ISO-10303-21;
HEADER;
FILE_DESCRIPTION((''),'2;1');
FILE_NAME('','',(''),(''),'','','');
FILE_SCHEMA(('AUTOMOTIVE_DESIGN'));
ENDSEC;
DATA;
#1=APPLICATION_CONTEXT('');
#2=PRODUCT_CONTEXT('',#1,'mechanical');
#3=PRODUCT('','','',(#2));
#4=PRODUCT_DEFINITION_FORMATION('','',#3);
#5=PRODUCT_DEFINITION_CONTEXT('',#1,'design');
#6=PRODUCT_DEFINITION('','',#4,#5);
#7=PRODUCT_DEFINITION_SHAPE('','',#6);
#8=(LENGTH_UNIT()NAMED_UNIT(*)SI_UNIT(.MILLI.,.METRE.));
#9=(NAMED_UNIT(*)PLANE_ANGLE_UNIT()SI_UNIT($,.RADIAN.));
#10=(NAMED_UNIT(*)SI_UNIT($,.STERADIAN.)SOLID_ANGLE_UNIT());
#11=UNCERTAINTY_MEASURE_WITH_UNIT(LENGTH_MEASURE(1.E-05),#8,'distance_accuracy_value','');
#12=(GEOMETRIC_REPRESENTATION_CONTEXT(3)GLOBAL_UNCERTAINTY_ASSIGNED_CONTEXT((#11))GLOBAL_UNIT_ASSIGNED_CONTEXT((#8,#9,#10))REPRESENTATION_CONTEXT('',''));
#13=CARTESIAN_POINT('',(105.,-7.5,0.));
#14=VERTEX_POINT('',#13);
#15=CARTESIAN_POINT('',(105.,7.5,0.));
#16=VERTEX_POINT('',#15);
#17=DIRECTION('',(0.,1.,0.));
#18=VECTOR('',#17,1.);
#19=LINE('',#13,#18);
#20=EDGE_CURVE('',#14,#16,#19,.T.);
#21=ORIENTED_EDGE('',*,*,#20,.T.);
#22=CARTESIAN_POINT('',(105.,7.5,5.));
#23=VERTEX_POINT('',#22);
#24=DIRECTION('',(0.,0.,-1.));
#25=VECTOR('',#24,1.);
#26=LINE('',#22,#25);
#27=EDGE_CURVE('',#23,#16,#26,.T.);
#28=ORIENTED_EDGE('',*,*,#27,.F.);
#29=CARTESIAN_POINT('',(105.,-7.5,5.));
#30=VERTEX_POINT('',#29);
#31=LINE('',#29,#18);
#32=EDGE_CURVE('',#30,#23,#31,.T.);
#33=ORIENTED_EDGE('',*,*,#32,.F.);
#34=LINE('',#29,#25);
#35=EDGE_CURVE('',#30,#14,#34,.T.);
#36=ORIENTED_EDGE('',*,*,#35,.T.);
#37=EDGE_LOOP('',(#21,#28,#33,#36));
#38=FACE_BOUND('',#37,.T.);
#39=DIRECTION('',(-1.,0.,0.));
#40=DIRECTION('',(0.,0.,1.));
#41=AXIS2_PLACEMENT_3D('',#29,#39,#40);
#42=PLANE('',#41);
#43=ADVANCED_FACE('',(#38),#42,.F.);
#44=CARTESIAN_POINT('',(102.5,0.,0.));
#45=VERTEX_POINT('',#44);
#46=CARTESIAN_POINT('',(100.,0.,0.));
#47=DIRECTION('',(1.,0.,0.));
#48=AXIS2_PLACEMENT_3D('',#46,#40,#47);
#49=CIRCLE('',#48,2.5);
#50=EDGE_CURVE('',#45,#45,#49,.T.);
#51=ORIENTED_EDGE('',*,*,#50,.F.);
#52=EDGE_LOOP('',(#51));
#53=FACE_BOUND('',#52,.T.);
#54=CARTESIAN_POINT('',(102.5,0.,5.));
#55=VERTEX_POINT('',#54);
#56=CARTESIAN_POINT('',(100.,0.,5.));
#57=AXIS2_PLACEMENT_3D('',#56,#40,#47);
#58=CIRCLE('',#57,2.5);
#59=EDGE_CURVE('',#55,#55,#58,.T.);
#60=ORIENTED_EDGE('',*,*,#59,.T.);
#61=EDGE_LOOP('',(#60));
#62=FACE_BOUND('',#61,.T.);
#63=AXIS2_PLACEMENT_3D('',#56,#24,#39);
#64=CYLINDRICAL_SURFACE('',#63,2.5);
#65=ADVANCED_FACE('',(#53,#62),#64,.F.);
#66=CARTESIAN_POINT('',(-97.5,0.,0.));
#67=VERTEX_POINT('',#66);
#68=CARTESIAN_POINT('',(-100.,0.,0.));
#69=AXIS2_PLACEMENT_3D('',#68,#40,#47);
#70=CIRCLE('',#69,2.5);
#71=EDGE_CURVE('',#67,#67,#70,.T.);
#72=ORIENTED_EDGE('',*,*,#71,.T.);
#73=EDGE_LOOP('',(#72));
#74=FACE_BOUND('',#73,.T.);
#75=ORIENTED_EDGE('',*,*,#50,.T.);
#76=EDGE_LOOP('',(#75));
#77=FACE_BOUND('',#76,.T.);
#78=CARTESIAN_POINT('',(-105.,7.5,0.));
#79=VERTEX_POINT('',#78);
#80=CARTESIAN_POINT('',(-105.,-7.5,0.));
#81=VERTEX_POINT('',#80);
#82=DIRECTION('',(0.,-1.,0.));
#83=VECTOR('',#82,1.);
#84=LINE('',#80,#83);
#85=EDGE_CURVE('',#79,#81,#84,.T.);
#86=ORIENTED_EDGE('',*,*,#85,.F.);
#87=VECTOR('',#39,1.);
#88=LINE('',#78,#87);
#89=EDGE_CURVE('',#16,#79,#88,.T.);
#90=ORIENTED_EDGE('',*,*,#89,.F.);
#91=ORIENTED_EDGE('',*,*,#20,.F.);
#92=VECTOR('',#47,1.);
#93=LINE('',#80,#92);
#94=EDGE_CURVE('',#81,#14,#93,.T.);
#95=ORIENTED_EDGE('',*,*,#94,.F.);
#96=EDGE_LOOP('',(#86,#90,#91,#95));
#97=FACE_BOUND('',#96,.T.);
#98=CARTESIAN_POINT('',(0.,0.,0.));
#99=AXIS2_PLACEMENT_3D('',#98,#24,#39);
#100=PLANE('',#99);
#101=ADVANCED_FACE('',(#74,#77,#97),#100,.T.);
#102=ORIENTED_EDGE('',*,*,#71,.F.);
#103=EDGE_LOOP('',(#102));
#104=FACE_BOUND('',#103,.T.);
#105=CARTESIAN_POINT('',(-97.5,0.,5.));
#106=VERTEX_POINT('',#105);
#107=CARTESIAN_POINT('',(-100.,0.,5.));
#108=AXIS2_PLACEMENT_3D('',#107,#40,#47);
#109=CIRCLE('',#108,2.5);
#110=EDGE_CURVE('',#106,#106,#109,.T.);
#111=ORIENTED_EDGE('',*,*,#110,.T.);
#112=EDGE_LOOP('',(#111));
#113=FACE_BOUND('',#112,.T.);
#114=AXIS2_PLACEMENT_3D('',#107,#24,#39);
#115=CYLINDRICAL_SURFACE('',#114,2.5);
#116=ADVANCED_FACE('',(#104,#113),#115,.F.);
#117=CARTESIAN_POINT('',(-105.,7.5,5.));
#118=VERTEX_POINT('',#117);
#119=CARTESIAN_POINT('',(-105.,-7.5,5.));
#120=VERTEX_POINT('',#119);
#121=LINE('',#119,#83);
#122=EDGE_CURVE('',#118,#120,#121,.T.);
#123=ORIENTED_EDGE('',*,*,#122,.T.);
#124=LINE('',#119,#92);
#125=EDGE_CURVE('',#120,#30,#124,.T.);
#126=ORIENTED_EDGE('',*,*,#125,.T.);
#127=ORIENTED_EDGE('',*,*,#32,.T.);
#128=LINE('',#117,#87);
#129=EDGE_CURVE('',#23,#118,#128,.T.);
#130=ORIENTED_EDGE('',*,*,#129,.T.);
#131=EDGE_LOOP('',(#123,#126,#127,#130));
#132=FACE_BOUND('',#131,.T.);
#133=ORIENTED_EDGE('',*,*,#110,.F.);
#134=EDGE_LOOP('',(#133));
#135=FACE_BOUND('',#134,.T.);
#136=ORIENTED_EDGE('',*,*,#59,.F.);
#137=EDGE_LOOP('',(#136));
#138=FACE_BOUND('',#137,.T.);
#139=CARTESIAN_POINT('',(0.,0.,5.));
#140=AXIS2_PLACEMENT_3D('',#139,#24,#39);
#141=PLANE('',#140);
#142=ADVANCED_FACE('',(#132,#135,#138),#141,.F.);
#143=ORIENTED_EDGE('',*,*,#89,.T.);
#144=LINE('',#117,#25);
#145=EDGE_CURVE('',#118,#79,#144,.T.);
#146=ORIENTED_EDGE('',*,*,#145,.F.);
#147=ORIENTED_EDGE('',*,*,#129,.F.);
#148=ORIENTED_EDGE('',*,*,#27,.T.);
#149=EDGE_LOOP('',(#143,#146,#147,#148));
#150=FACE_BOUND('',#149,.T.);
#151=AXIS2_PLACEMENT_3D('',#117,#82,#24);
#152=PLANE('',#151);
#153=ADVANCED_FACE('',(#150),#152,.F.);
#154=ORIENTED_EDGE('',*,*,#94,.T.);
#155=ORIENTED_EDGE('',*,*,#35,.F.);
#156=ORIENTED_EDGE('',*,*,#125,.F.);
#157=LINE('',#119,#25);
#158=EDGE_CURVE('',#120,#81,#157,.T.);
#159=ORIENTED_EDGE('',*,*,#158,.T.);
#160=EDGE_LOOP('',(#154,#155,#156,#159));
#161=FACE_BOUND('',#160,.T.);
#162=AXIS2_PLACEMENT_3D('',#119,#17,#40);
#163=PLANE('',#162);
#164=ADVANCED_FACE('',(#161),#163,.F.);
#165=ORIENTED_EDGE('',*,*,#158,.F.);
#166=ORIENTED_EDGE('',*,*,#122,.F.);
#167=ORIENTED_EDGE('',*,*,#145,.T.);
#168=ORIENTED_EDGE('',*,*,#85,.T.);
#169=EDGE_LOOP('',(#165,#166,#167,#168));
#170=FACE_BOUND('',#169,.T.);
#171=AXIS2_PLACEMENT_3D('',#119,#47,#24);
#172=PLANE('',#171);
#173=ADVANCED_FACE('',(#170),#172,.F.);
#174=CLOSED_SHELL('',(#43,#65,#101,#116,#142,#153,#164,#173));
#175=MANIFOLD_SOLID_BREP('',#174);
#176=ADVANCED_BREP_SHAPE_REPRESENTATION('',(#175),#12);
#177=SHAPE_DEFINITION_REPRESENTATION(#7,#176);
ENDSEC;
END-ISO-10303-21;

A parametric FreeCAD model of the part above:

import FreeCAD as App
import Part
import Sketcher
from FreeCAD import Vector

doc = App.newDocument("Part")
body = doc.addObject("PartDesign::Body", "Body")

sketch1 = doc.addObject("Sketcher::SketchObject", "Sketch")
body.addObject(sketch1)
sketch1.AttachmentSupport = (doc.XY_Plane, [""])
sketch1.MapMode = "FlatFace"
sketch1.addGeometry(Part.LineSegment(Vector(-105, 7.5, 0), Vector(-105, -7.5, 0)), False)
sketch1.addGeometry(Part.LineSegment(Vector(-105, -7.5, 0), Vector(105, -7.5, 0)), False)
sketch1.addGeometry(Part.LineSegment(Vector(105, -7.5, 0), Vector(105, 7.5, 0)), False)
sketch1.addGeometry(Part.LineSegment(Vector(105, 7.5, 0), Vector(-105, 7.5, 0)), False)
sketch1.addGeometry(Part.Circle(Vector(-100, 0, 0), Vector(0, 0, 1), 2.5), False)
sketch1.addGeometry(Part.Circle(Vector(100, 0, 0), Vector(0, 0, 1), 2.5), False)
sketch1.addConstraint(Sketcher.Constraint("Coincident", 0, 2, 1, 1))
sketch1.addConstraint(Sketcher.Constraint("Coincident", 1, 2, 2, 1))
sketch1.addConstraint(Sketcher.Constraint("Coincident", 2, 2, 3, 1))
sketch1.addConstraint(Sketcher.Constraint("Coincident", 3, 2, 0, 1))
sketch1.addConstraint(Sketcher.Constraint("Vertical", 0))
sketch1.addConstraint(Sketcher.Constraint("Horizontal", 1))
sketch1.addConstraint(Sketcher.Constraint("Vertical", 2))
sketch1.addConstraint(Sketcher.Constraint("Horizontal", 3))
sketch1.addConstraint(Sketcher.Constraint("Equal", 4, 5))
sketch1.addConstraint(Sketcher.Constraint("Symmetric", 4, 3, 5, 3, -1, 1))
sketch1.addConstraint(Sketcher.Constraint("Symmetric", 0, 2, 2, 2, -1, 1))
sketch1.addConstraint(Sketcher.Constraint("PointOnObject", 4, 3, -1))
sketch1.addConstraint(Sketcher.Constraint("Diameter", 4, 5.0))
sketch1.addConstraint(Sketcher.Constraint("DistanceX", 1, 1, 1, 2, 210.0))
sketch1.addConstraint(Sketcher.Constraint("DistanceY", 0, 2, 0, 1, 15.0))
sketch1.addConstraint(Sketcher.Constraint("DistanceX", 4, 3, -1, 1, 100.0))
pad1 = doc.addObject("PartDesign::Pad", "Pad")
body.addObject(pad1)
pad1.Profile = sketch1
pad1.Length = 5

doc.recompute()
